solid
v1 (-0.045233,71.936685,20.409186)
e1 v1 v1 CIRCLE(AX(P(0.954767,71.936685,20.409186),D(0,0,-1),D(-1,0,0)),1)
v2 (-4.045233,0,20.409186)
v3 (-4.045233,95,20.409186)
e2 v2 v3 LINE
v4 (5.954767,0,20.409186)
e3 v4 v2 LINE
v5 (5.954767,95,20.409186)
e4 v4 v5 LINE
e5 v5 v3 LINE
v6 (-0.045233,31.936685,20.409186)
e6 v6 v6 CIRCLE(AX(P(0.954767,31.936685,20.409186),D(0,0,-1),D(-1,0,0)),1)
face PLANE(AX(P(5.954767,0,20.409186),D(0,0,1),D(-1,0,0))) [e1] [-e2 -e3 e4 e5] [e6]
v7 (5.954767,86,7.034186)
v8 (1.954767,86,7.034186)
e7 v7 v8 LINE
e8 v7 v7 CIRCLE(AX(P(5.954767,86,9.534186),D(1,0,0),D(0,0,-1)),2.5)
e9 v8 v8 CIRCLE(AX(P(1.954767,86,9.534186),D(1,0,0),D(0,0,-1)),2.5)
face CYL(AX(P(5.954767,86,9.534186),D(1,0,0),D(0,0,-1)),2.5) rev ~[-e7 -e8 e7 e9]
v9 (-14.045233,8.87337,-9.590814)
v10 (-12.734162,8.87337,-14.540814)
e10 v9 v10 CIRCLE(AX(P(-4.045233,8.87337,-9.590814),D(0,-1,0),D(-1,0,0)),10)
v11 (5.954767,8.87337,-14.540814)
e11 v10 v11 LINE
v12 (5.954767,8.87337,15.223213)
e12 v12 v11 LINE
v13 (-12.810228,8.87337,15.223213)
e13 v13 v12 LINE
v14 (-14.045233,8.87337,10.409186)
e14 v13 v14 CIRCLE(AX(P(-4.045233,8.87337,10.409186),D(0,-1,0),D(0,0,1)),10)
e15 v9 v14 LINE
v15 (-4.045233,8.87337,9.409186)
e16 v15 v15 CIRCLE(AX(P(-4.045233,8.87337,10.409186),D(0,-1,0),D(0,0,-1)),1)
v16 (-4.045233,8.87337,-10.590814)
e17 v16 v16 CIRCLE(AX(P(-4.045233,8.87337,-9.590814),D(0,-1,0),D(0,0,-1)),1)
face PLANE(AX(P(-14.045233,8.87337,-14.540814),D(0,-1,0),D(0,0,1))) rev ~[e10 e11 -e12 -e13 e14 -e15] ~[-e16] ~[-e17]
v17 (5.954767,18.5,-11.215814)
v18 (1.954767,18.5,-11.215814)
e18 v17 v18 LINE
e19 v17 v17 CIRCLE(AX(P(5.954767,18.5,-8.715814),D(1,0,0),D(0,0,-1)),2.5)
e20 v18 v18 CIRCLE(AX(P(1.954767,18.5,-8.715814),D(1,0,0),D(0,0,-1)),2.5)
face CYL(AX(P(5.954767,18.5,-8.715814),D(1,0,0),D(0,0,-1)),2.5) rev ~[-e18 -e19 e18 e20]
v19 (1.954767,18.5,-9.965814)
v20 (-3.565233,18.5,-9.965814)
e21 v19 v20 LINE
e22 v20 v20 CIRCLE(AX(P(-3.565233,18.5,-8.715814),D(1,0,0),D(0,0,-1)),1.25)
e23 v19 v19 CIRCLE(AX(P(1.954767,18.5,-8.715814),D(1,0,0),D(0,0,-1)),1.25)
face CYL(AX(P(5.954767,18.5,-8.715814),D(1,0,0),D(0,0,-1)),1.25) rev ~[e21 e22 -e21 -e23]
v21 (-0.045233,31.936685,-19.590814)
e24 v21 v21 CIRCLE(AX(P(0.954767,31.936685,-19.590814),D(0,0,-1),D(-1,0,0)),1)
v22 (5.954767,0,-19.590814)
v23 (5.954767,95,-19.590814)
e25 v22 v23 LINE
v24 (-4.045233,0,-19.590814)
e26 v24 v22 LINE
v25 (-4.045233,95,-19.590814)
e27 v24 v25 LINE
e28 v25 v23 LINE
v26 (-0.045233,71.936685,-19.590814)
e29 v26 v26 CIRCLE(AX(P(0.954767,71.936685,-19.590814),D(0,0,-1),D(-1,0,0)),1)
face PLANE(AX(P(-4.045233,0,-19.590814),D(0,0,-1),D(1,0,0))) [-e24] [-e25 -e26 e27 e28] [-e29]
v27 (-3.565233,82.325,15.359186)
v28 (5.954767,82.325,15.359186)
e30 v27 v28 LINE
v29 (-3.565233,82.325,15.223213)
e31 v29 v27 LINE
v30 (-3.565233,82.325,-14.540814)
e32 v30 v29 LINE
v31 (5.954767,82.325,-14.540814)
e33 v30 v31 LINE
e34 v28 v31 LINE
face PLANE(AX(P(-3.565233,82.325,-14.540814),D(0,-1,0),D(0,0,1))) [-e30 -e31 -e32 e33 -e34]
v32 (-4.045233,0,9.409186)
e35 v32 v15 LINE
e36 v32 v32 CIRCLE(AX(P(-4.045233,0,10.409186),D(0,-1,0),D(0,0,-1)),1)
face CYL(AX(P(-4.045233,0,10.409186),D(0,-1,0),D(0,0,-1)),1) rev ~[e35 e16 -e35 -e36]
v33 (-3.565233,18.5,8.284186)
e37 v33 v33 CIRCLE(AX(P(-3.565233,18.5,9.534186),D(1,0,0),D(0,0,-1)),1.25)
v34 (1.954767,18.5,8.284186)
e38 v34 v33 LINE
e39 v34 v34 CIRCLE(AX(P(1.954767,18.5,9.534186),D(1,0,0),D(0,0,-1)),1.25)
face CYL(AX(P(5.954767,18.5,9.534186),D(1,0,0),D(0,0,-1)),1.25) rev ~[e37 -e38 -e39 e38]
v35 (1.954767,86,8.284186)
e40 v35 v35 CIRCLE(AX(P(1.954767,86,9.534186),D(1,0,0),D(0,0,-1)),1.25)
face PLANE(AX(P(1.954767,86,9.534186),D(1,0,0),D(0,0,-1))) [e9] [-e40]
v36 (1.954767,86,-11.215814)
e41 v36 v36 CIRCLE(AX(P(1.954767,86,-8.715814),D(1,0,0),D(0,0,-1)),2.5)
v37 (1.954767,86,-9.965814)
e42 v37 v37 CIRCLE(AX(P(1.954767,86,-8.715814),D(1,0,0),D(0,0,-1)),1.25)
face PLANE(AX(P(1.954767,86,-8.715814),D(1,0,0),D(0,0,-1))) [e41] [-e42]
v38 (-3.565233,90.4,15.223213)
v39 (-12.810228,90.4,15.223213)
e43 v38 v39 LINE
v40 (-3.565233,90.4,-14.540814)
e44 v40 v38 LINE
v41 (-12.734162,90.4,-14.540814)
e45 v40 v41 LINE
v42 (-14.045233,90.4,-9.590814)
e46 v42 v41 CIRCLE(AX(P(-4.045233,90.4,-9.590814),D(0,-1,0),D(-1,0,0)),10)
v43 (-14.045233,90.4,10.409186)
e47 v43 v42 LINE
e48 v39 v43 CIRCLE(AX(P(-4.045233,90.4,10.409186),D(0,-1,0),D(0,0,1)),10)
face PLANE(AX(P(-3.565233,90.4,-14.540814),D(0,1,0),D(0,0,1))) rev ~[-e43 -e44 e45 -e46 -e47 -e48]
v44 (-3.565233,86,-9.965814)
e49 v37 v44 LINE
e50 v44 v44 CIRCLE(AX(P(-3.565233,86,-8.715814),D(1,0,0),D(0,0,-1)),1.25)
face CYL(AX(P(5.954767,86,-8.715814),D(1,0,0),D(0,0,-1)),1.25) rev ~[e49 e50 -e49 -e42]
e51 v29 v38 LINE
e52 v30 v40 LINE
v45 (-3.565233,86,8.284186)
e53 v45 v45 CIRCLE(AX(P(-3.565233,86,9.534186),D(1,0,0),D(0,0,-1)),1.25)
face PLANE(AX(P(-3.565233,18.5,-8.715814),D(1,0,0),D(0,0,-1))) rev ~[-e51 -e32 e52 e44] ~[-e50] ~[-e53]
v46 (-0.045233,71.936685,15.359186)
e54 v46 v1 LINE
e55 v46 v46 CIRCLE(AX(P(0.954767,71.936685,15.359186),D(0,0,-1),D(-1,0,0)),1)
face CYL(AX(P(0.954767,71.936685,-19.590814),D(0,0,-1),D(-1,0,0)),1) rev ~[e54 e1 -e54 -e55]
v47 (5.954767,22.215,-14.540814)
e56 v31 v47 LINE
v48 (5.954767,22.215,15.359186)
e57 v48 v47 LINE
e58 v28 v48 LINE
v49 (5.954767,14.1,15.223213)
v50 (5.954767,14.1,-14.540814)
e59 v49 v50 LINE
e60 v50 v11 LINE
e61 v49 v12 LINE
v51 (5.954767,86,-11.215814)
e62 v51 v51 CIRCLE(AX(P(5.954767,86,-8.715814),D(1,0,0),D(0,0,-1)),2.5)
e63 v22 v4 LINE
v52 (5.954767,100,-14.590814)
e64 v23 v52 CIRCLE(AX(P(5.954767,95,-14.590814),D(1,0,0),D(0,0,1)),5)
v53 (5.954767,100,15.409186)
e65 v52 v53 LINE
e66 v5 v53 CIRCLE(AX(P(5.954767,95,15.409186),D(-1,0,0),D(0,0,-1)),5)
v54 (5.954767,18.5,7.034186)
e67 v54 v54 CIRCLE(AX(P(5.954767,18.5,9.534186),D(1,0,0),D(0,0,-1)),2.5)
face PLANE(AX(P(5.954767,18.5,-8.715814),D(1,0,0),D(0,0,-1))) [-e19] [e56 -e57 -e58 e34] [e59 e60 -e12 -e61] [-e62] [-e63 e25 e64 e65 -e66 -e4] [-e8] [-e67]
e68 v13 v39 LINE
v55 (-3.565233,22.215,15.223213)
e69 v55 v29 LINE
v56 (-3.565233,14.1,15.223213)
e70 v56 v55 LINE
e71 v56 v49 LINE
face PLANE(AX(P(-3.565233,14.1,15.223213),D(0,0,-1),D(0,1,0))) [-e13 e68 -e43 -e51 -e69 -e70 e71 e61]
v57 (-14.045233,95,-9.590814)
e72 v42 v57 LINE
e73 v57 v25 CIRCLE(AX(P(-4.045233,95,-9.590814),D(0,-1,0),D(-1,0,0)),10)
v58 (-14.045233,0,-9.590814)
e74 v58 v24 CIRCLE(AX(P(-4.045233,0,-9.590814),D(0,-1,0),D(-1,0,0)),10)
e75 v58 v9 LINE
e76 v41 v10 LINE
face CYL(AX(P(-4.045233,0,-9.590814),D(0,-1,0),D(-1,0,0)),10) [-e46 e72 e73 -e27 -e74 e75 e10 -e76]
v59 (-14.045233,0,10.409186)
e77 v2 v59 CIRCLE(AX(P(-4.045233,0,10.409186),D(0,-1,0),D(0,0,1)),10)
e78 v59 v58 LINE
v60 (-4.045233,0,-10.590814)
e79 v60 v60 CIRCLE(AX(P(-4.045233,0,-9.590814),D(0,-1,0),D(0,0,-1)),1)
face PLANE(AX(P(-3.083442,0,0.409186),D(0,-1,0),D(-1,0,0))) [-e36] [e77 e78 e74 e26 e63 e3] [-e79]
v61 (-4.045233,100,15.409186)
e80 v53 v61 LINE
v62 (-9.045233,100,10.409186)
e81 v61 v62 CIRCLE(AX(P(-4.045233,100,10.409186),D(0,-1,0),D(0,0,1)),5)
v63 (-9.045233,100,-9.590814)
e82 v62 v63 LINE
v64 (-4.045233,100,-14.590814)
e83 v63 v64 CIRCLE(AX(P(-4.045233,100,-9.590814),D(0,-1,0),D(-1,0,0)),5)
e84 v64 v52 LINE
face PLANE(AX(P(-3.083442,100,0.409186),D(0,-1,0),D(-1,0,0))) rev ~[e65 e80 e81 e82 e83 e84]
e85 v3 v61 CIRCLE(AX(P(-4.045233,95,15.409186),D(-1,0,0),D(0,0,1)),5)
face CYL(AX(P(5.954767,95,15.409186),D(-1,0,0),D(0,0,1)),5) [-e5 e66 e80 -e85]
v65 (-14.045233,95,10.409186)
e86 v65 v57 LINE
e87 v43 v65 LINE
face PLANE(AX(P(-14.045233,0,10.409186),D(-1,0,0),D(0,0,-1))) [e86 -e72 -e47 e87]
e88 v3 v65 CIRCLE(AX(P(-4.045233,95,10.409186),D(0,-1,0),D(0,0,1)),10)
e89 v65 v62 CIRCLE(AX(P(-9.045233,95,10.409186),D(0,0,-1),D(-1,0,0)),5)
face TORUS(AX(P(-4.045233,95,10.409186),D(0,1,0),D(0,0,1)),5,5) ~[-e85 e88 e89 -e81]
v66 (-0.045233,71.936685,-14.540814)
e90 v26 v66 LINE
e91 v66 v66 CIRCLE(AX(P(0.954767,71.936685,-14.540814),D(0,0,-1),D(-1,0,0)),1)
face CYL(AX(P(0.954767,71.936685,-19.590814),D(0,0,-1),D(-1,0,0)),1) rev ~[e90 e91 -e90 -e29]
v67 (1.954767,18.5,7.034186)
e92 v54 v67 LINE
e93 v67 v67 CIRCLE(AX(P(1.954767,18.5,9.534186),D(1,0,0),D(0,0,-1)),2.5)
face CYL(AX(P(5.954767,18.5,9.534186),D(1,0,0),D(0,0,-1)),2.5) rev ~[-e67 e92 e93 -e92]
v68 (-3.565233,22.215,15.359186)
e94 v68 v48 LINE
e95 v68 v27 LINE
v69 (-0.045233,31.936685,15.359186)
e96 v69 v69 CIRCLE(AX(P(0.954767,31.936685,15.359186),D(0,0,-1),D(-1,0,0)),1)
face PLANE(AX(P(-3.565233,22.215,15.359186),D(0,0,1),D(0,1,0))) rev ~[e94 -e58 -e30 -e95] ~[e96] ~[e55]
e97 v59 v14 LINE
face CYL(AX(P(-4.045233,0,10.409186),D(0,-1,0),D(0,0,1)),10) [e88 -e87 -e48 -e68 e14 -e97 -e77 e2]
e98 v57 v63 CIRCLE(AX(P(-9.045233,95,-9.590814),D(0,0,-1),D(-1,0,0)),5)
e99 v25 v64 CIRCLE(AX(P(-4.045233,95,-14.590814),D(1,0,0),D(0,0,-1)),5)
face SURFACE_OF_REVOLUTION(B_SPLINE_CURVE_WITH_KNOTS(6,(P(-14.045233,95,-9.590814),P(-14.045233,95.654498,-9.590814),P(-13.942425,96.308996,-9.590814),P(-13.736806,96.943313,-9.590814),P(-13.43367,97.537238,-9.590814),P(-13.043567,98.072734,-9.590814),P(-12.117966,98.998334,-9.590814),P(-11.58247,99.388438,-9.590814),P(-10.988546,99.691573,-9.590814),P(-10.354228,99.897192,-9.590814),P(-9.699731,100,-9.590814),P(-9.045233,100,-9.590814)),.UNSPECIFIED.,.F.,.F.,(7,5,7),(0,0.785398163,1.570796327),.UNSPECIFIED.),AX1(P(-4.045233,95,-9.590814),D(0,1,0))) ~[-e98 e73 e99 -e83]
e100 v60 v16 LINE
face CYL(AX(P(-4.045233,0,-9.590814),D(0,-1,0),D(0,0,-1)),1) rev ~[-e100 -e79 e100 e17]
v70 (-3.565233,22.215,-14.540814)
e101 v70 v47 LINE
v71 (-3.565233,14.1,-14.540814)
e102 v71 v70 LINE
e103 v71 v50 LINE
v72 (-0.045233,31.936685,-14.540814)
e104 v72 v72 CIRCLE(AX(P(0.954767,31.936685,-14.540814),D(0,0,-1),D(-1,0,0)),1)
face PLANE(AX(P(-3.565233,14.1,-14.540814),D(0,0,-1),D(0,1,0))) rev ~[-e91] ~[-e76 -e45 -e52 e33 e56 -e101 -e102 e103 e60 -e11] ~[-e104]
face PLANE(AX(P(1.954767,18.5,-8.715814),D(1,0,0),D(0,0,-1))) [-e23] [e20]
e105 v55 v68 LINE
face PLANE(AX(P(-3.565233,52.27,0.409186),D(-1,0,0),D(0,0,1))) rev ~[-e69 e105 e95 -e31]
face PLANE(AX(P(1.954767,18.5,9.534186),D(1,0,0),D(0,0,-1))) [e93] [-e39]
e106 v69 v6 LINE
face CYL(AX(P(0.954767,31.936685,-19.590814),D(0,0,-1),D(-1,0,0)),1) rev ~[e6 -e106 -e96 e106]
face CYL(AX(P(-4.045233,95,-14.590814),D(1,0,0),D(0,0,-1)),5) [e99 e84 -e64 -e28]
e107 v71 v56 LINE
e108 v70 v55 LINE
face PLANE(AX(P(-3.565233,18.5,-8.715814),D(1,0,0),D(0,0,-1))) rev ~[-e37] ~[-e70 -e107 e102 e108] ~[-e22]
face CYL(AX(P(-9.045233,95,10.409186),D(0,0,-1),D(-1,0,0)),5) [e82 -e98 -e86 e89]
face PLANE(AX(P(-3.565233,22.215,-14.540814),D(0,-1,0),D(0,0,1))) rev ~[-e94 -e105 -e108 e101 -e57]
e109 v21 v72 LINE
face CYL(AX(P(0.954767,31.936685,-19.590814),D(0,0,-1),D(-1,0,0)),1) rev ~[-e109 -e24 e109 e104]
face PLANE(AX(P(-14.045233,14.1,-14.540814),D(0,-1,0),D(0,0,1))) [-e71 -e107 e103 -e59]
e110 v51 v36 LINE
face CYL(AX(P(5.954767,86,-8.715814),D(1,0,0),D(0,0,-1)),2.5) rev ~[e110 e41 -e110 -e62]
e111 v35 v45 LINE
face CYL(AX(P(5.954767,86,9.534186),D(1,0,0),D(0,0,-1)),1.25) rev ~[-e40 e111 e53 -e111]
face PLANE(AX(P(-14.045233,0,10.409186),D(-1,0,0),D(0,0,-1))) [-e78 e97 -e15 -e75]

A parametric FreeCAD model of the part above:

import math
import FreeCAD as App
import Part
import Sketcher

V = App.Vector
Q = App.Units.Quantity


def edges_at(feature, points):
    """Names of the edges that pass closest to the given points."""
    edges = feature.Shape.Edges
    near = lambda p: min(range(len(edges)), key=lambda i: edges[i].distToShape(Part.Vertex(*p))[0])
    return sorted({f"Edge{near(p) + 1}" for p in points})

doc = App.newDocument("Part")
body = doc.addObject("PartDesign::Body", "Body")

# Sketch on XZ plane
sketch1 = doc.addObject("Sketcher::SketchObject", "Sketch")
body.addObject(sketch1)
sketch1.AttachmentSupport = (doc.XZ_Plane, [""])
sketch1.MapMode = "FlatFace"
sketch1.addGeometry([
    Part.LineSegment(V(6, -20, 0), V(-4, -20, 0)),  # 0
    Part.ArcOfCircle(Part.Circle(V(-4, -10, 0), V(0, 0, 1), 10), math.radians(180), math.radians(270)),  # 1
    Part.LineSegment(V(-14, -10, 0), V(-14, 10, 0)),  # 2
    Part.ArcOfCircle(Part.Circle(V(-4, 10, 0), V(0, 0, 1), 10), math.radians(90), math.radians(180)),  # 3
    Part.LineSegment(V(-4, 20, 0), V(6, 20, 0)),  # 4
    Part.LineSegment(V(6, 20, 0), V(6, -20, 0)),  # 5
], False)
sketch1.addConstraint([
    Sketcher.Constraint("Tangent", 0, 2, 1, 2),
    Sketcher.Constraint("Tangent", 1, 1, 2, 1),
    Sketcher.Constraint("Tangent", 2, 2, 3, 2),
    Sketcher.Constraint("Tangent", 3, 1, 4, 1),
    Sketcher.Constraint("Coincident", 4, 2, 5, 1),
    Sketcher.Constraint("Coincident", 5, 2, 0, 1),
    Sketcher.Constraint("Horizontal", 0),
    Sketcher.Constraint("Vertical", 2),
    Sketcher.Constraint("Horizontal", 4),
    Sketcher.Constraint("Vertical", 5),
    Sketcher.Constraint("Equal", 1, 3),
    Sketcher.Constraint("Radius", 1, Q("10 mm")),
    Sketcher.Constraint("DistanceX", 0, 2, 0, 1, Q("10 mm")),
    Sketcher.Constraint("DistanceY", 2, 1, 2, 2, Q("20 mm")),
    Sketcher.Constraint("DistanceX", 1, 3, -1, 1, Q("4.045233 mm")),
    Sketcher.Constraint("DistanceY", 1, 3, -1, 1, Q("9.590814 mm")),
])
pad1 = doc.addObject("PartDesign::Pad", "Pad")
body.addObject(pad1)
pad1.Profile = sketch1
pad1.Length = 100
pad1.Reversed = True

# Sketch on YZ plane
sketch2 = doc.addObject("Sketcher::SketchObject", "Sketch001")
body.addObject(sketch2)
sketch2.AttachmentSupport = (doc.YZ_Plane, [""])
sketch2.MapMode = "FlatFace"
sketch2.AttachmentOffset = App.Placement(V(0, 0, -14.045233), App.Rotation())
sketch2.addGeometry([
    Part.LineSegment(V(90, -14, 0), V(14, -14, 0)),
    Part.LineSegment(V(14, -14, 0), V(14, 15, 0)),
    Part.LineSegment(V(14, 15, 0), V(90, 15, 0)),
    Part.LineSegment(V(90, 15, 0), V(90, -14, 0)),
], False)
sketch2.addConstraint([
    Sketcher.Constraint("Coincident", 0, 2, 1, 1),
    Sketcher.Constraint("Coincident", 1, 2, 2, 1),
    Sketcher.Constraint("Coincident", 2, 2, 3, 1),
    Sketcher.Constraint("Coincident", 3, 2, 0, 1),
    Sketcher.Constraint("Horizontal", 0),
    Sketcher.Constraint("Vertical", 1),
    Sketcher.Constraint("Horizontal", 2),
    Sketcher.Constraint("Vertical", 3),
    Sketcher.Constraint("DistanceX", 0, 2, 0, 1, Q("75.5 mm")),
    Sketcher.Constraint("DistanceY", 1, 1, 1, 2, Q("29.1 mm")),
    Sketcher.Constraint("DistanceX", -1, 1, 2, 2, Q("90 mm")),
    Sketcher.Constraint("DistanceY", 0, 2, -1, 1, Q("14.140814 mm")),
])
pocket1 = doc.addObject("PartDesign::Pocket", "Pocket")
body.addObject(pocket1)
pocket1.Profile = sketch2
pocket1.Length = 11.2
pocket1.Reversed = True

# Sketch on YZ plane
sketch3 = doc.addObject("Sketcher::SketchObject", "Sketch002")
body.addObject(sketch3)
sketch3.AttachmentSupport = (doc.YZ_Plane, [""])
sketch3.MapMode = "FlatFace"
sketch3.AttachmentOffset = App.Placement(V(0, 0, -2.845233), App.Rotation())
sketch3.addGeometry([
    Part.ArcOfCircle(Part.Circle(V(86, 9.5, 0), V(0, 0, 1), 2.8), math.radians(31), math.radians(90)),  # 0
    Part.ArcOfCircle(Part.Circle(V(86, 9.5, 0), V(0, 0, 1), 2.8), math.radians(-31), math.radians(31)),  # 1
    Part.ArcOfCircle(Part.Circle(V(86, 9.5, 0), V(0, 0, 1), 2.8), math.radians(90), math.radians(329)),  # 2
    Part.ArcOfCircle(Part.Circle(V(86, -8.7, 0), V(0, 0, 1), 2.8), math.radians(31), math.radians(90)),  # 3
    Part.ArcOfCircle(Part.Circle(V(86, -8.7, 0), V(0, 0, 1), 2.8), math.radians(-31), math.radians(31)),  # 4
    Part.ArcOfCircle(Part.Circle(V(86, -8.7, 0), V(0, 0, 1), 2.8), math.radians(90), math.radians(329)),  # 5
    Part.LineSegment(V(22.6, 15, 0), V(81.9, 15, 0)),  # 6
    Part.LineSegment(V(81.9, 15, 0), V(81.9, -14.1, 0)),  # 7
    Part.LineSegment(V(81.9, -14.1, 0), V(22.6, -14.1, 0)),  # 8
    Part.LineSegment(V(22.6, -14.1, 0), V(22.6, 15, 0)),  # 9
    Part.ArcOfCircle(Part.Circle(V(18.5, 9.5, 0), V(0, 0, 1), 2.8), math.radians(149), math.radians(211)),  # 10
    Part.ArcOfCircle(Part.Circle(V(18.5, 9.5, 0), V(0, 0, 1), 2.8), math.radians(90), math.radians(149)),  # 11
    Part.ArcOfCircle(Part.Circle(V(18.5, 9.5, 0), V(0, 0, 1), 2.8), math.radians(-149), math.radians(90)),  # 12
    Part.ArcOfCircle(Part.Circle(V(18.5, -8.7, 0), V(0, 0, 1), 2.8), math.radians(149), math.radians(211)),  # 13
    Part.ArcOfCircle(Part.Circle(V(18.5, -8.7, 0), V(0, 0, 1), 2.8), math.radians(90), math.radians(149)),  # 14
    Part.ArcOfCircle(Part.Circle(V(18.5, -8.7, 0), V(0, 0, 1), 2.8), math.radians(-149), math.radians(90)),  # 15
], False)
sketch3.addConstraint([
    Sketcher.Constraint("Tangent", 0, 1, 1, 2),
    Sketcher.Constraint("Tangent", 1, 1, 2, 2),
    Sketcher.Constraint("Tangent", 2, 1, 0, 2),
    Sketcher.Constraint("Tangent", 3, 1, 4, 2),
    Sketcher.Constraint("Tangent", 4, 1, 5, 2),
    Sketcher.Constraint("Tangent", 5, 1, 3, 2),
    Sketcher.Constraint("Coincident", 6, 2, 7, 1),
    Sketcher.Constraint("Coincident", 7, 2, 8, 1),
    Sketcher.Constraint("Coincident", 8, 2, 9, 1),
    Sketcher.Constraint("Coincident", 9, 2, 6, 1),
    Sketcher.Constraint("Tangent", 10, 1, 11, 2),
    Sketcher.Constraint("Tangent", 11, 1, 12, 2),
    Sketcher.Constraint("Tangent", 12, 1, 10, 2),
    Sketcher.Constraint("Tangent", 13, 1, 14, 2),
    Sketcher.Constraint("Tangent", 14, 1, 15, 2),
    Sketcher.Constraint("Tangent", 15, 1, 13, 2),
    Sketcher.Constraint("Horizontal", 6),
    Sketcher.Constraint("Vertical", 7),
    Sketcher.Constraint("Horizontal", 8),
    Sketcher.Constraint("Vertical", 9),
    Sketcher.Constraint("Equal", 2, 3),
    Sketcher.Constraint("Equal", 5, 10),
    Sketcher.Constraint("Equal", 12, 13),
    Sketcher.Constraint("Horizontal", 2, 3, 10, 3),
    Sketcher.Constraint("Horizontal", 5, 3, 13, 3),
    Sketcher.Constraint("Horizontal", 0, 1, 10, 1),
    Sketcher.Constraint("Horizontal", 1, 1, 12, 1),
    Sketcher.Constraint("Horizontal", 3, 1, 13, 1),
    Sketcher.Constraint("Horizontal", 4, 1, 15, 1),
    Sketcher.Constraint("Vertical", 2, 3, 3, 3),
    Sketcher.Constraint("Vertical", 12, 3, 13, 3),
    Sketcher.Constraint("Vertical", 0, 1, 1, 1),
    Sketcher.Constraint("Vertical", 5, 3, 2, 1),
    Sketcher.Constraint("Vertical", 1, 1, 3, 1),
    Sketcher.Constraint("Vertical", 3, 1, 4, 1),
    Sketcher.Constraint("Vertical", 2, 1, 5, 1),
    Sketcher.Constraint("Vertical", 15, 3, 11, 1),
    Sketcher.Constraint("Vertical", 11, 1, 14, 1),
    Sketcher.Constraint("Radius", 0, Q("2.75 mm")),
    Sketcher.Constraint("DistanceY", 7, 2, 7, 1, Q("29.1 mm")),
    Sketcher.Constraint("DistanceX", -1, 1, 0, 3, Q("86 mm")),
    Sketcher.Constraint("DistanceY", 0, 1, 6, 2, Q("4 mm")),
    Sketcher.Constraint("DistanceY", 7, 2, 4, 1, Q("4 mm")),
    Sketcher.Constraint("DistanceX", 6, 1, 6, 2, Q("59.31 mm")),
    Sketcher.Constraint("DistanceX", -1, 1, 10, 3, Q("18.5 mm")),
    Sketcher.Constraint("DistanceY", 3, 1, 1, 1, Q("15.4 mm")),
    Sketcher.Constraint("DistanceX", -1, 1, 6, 2, Q("81.925 mm")),
    Sketcher.Constraint("DistanceY", -1, 1, 0, 3, Q("9.534186 mm")),
])
pocket2 = doc.addObject("PartDesign::Pocket", "Pocket001")
body.addObject(pocket2)
pocket2.Profile = sketch3
pocket2.Length = 22.2
pocket2.Reversed = True
doc.recompute()

fillet = doc.addObject("PartDesign::Fillet", "Fillet")
body.addObject(fillet)
fillet.Base = (pocket2, edges_at(pocket2, [
    (-11.116, 100, -16.662),
    (-14.045, 100, 0.409),
    (-11.116, 100, 17.48),
    (0.955, 100, 20.409),
    (0.955, 100, -19.591),
]))
fillet.Radius = 5

# Sketch on YZ plane
sketch4 = doc.addObject("Sketcher::SketchObject", "Sketch003")
body.addObject(sketch4)
sketch4.AttachmentSupport = (doc.YZ_Plane, [""])
sketch4.MapMode = "FlatFace"
sketch4.AttachmentOffset = App.Placement(V(0, 0, -2.845233), App.Rotation())
sketch4.addGeometry([
    Part.LineSegment(V(22.6, -14.1, 0), V(14.5, -14.1, 0)),  # 0
    Part.LineSegment(V(14.5, -14.1, 0), V(14.5, 15, 0)),  # 1
    Part.LineSegment(V(14.5, 15, 0), V(22.6, 15, 0)),  # 2
    Part.LineSegment(V(22.6, 15, 0), V(22.6, -14.1, 0)),  # 3
    Part.Circle(V(18.5, -8.7, 0), V(0, 0, 1), 2.8),  # 4
    Part.Circle(V(18.5, 9.5, 0), V(0, 0, 1), 2.8),  # 5
    Part.LineSegment(V(90, -14.1, 0), V(81.9, -14.1, 0)),  # 6
    Part.LineSegment(V(81.9, -14.1, 0), V(81.9, 15, 0)),  # 7
    Part.LineSegment(V(81.9, 15, 0), V(90, 15, 0)),  # 8
    Part.LineSegment(V(90, 15, 0), V(90, -14.1, 0)),  # 9
    Part.Circle(V(86, -8.7, 0), V(0, 0, 1), 2.8),  # 10
    Part.Circle(V(86, 9.5, 0), V(0, 0, 1), 2.8),  # 11
], False)
sketch4.addConstraint([
    Sketcher.Constraint("Coincident", 0, 2, 1, 1),
    Sketcher.Constraint("Coincident", 1, 2, 2, 1),
    Sketcher.Constraint("Coincident", 2, 2, 3, 1),
    Sketcher.Constraint("Coincident", 3, 2, 0, 1),
    Sketcher.Constraint("Coincident", 6, 2, 7, 1),
    Sketcher.Constraint("Coincident", 7, 2, 8, 1),
    Sketcher.Constraint("Coincident", 8, 2, 9, 1),
    Sketcher.Constraint("Coincident", 9, 2, 6, 1),
    Sketcher.Constraint("Horizontal", 0),
    Sketcher.Constraint("Vertical", 1),
    Sketcher.Constraint("Horizontal", 2),
    Sketcher.Constraint("Vertical", 3),
    Sketcher.Constraint("Horizontal", 6),
    Sketcher.Constraint("Vertical", 7),
    Sketcher.Constraint("Horizontal", 8),
    Sketcher.Constraint("Vertical", 9),
    Sketcher.Constraint("Equal", 4, 5),
    Sketcher.Constraint("Equal", 5, 10),
    Sketcher.Constraint("Equal", 10, 11),
    Sketcher.Constraint("Horizontal", 4, 3, 10, 3),
    Sketcher.Constraint("Horizontal", 5, 3, 11, 3),
    Sketcher.Constraint("Horizontal", 3, 2, 6, 2),
    Sketcher.Constraint("Horizontal", 2, 2, 7, 2),
    Sketcher.Constraint("Vertical", 4, 3, 5, 3),
    Sketcher.Constraint("Vertical", 10, 3, 11, 3),
    Sketcher.Constraint("Diameter", 4, Q("5.5 mm")),
    Sketcher.Constraint("DistanceY", 1, 1, 1, 2, Q("29.1 mm")),
    Sketcher.Constraint("DistanceX", -1, 1, 10, 3, Q("86 mm")),
    Sketcher.Constraint("DistanceX", -1, 1, 8, 2, Q("90 mm")),
    Sketcher.Constraint("DistanceX", 0, 2, 4, 3, Q("4 mm")),
    Sketcher.Constraint("DistanceX", -1, 1, 4, 3, Q("18.5 mm")),
    Sketcher.Constraint("DistanceX", 0, 2, 0, 1, Q("8.115 mm")),
    Sketcher.Constraint("DistanceX", 6, 2, 6, 1, Q("8.075 mm")),
    Sketcher.Constraint("DistanceY", 4, 3, 5, 3, Q("18.25 mm")),
    Sketcher.Constraint("DistanceY", 0, 2, 4, 3, Q("5.425 mm")),
    Sketcher.Constraint("DistanceY", 4, 3, -1, 1, Q("8.715814 mm")),
])
pad2 = doc.addObject("PartDesign::Pad", "Pad001")
body.addObject(pad2)
pad2.Profile = sketch4
pad2.Length = 0.72
pad2.Reversed = True

# Sketch on YZ plane
sketch5 = doc.addObject("Sketcher::SketchObject", "Sketch004")
body.addObject(sketch5)
sketch5.AttachmentSupport = (doc.YZ_Plane, [""])
sketch5.MapMode = "FlatFace"
sketch5.AttachmentOffset = App.Placement(V(0, 0, 5.954767), App.Rotation())
sketch5.addGeometry([
    Part.Circle(V(18.5, -8.7, 0), V(0, 0, 1), 2.8),  # 0
    Part.Circle(V(18.5, -8.7, 0), V(0, 0, 1), 1.2),  # 1
    Part.Circle(V(18.5, 9.5, 0), V(0, 0, 1), 2.8),  # 2
    Part.Circle(V(18.5, 9.5, 0), V(0, 0, 1), 1.2),  # 3
    Part.Circle(V(86, -8.7, 0), V(0, 0, 1), 2.8),  # 4
    Part.Circle(V(86, -8.7, 0), V(0, 0, 1), 1.2),  # 5
    Part.Circle(V(86, 9.5, 0), V(0, 0, 1), 2.8),  # 6
    Part.Circle(V(86, 9.5, 0), V(0, 0, 1), 1.2),  # 7
], False)
sketch5.addConstraint([
    Sketcher.Constraint("Coincident", 1, 3, 0, 3),
    Sketcher.Constraint("Coincident", 3, 3, 2, 3),
    Sketcher.Constraint("Coincident", 5, 3, 4, 3),
    Sketcher.Constraint("Coincident", 7, 3, 6, 3),
    Sketcher.Constraint("Equal", 0, 2),
    Sketcher.Constraint("Equal", 1, 3),
    Sketcher.Constraint("Equal", 2, 4),
    Sketcher.Constraint("Equal", 3, 5),
    Sketcher.Constraint("Equal", 4, 6),
    Sketcher.Constraint("Equal", 5, 7),
    Sketcher.Constraint("Horizontal", 1, 3, 4, 3),
    Sketcher.Constraint("Horizontal", 3, 3, 6, 3),
    Sketcher.Constraint("Vertical", 1, 3, 2, 3),
    Sketcher.Constraint("Vertical", 5, 3, 6, 3),
    Sketcher.Constraint("Diameter", 0, Q("5.5 mm")),
    Sketcher.Constraint("Diameter", 1, Q("2.5 mm")),
    Sketcher.Constraint("DistanceX", -1, 1, 4, 3, Q("86 mm")),
    Sketcher.Constraint("DistanceX", -1, 1, 0, 3, Q("18.5 mm")),
    Sketcher.Constraint("DistanceY", 0, 3, 2, 3, Q("18.25 mm")),
    Sketcher.Constraint("DistanceY", 0, 3, -1, 1, Q("8.715814 mm")),
])
pad3 = doc.addObject("PartDesign::Pad", "Pad002")
body.addObject(pad3)
pad3.Profile = sketch5
pad3.Length = 9.52
pad3.Reversed = True

# Sketch on YZ plane
sketch6 = doc.addObject("Sketcher::SketchObject", "Sketch005")
body.addObject(sketch6)
sketch6.AttachmentSupport = (doc.YZ_Plane, [""])
sketch6.MapMode = "FlatFace"
sketch6.AttachmentOffset = App.Placement(V(0, 0, 5.954767), App.Rotation())
sketch6.addGeometry([
    Part.Circle(V(18.5, 9.5, 0), V(0, 0, 1), 2.5),
    Part.Circle(V(18.5, -8.7, 0), V(0, 0, 1), 2.5),
    Part.Circle(V(86, 9.5, 0), V(0, 0, 1), 2.5),
    Part.Circle(V(86, -8.7, 0), V(0, 0, 1), 2.5),
], False)
sketch6.addConstraint([
    Sketcher.Constraint("Equal", 0, 1),
    Sketcher.Constraint("Equal", 1, 2),
    Sketcher.Constraint("Equal", 2, 3),
    Sketcher.Constraint("Horizontal", 0, 3, 2, 3),
    Sketcher.Constraint("Horizontal", 1, 3, 3, 3),
    Sketcher.Constraint("Vertical", 0, 3, 1, 3),
    Sketcher.Constraint("Vertical", 2, 3, 3, 3),
    Sketcher.Constraint("Diameter", 0, Q("5 mm")),
    Sketcher.Constraint("DistanceX", -1, 1, 2, 3, Q("86 mm")),
    Sketcher.Constraint("DistanceX", -1, 1, 0, 3, Q("18.5 mm")),
    Sketcher.Constraint("DistanceY", 1, 3, 0, 3, Q("18.25 mm")),
    Sketcher.Constraint("DistanceY", -1, 1, 0, 3, Q("9.534186 mm")),
])
pocket3 = doc.addObject("PartDesign::Pocket", "Pocket002")
body.addObject(pocket3)
pocket3.Profile = sketch6
pocket3.Length = 4

# Sketch on YZ plane
sketch7 = doc.addObject("Sketcher::SketchObject", "Sketch006")
body.addObject(sketch7)
sketch7.AttachmentSupport = (doc.YZ_Plane, [""])
sketch7.MapMode = "FlatFace"
sketch7.AttachmentOffset = App.Placement(V(0, 0, -3.565233), App.Rotation())
sketch7.addGeometry([
    Part.LineSegment(V(90, -15, 0), V(14, -15, 0)),  # 0
    Part.LineSegment(V(14, -15, 0), V(14, 15, 0)),  # 1
    Part.LineSegment(V(14, 15, 0), V(90, 15, 0)),  # 2
    Part.LineSegment(V(90, 15, 0), V(90, -15, 0)),  # 3
    Part.LineSegment(V(14, 15, 0), V(14, -14, 0)),  # 4
    Part.LineSegment(V(14, -14, 0), V(90, -14, 0)),  # 5
    Part.LineSegment(V(90, -14, 0), V(90, 15, 0)),  # 6
    Part.LineSegment(V(90, 15, 0), V(14, 15, 0)),  # 7
], False)
sketch7.addConstraint([
    Sketcher.Constraint("Coincident", 0, 2, 1, 1),
    Sketcher.Constraint("Coincident", 1, 2, 2, 1),
    Sketcher.Constraint("Coincident", 2, 2, 3, 1),
    Sketcher.Constraint("Coincident", 3, 2, 0, 1),
    Sketcher.Constraint("Coincident", 4, 2, 5, 1),
    Sketcher.Constraint("Coincident", 5, 2, 6, 1),
    Sketcher.Constraint("Coincident", 6, 2, 7, 1),
    Sketcher.Constraint("Coincident", 7, 2, 4, 1),
    Sketcher.Constraint("Horizontal", 0),
    Sketcher.Constraint("Vertical", 1),
    Sketcher.Constraint("Horizontal", 2),
    Sketcher.Constraint("Vertical", 3),
    Sketcher.Constraint("Vertical", 4),
    Sketcher.Constraint("Horizontal", 5),
    Sketcher.Constraint("Vertical", 6),
    Sketcher.Constraint("Horizontal", 7),
    Sketcher.Constraint("DistanceX", 0, 2, 0, 1, Q("76.3 mm")),
    Sketcher.Constraint("DistanceX", 5, 1, 5, 2, Q("75.5 mm")),
    Sketcher.Constraint("DistanceX", -1, 1, 5, 2, Q("90 mm")),
    Sketcher.Constraint("DistanceX", -1, 1, 0, 2, Q("14.1 mm")),
    Sketcher.Constraint("DistanceY", 0, 2, 4, 2, Q("0.4 mm")),
    Sketcher.Constraint("DistanceY", 6, 2, 2, 2, Q("0.4 mm")),
    Sketcher.Constraint("DistanceY", 1, 1, 1, 2, Q("29.764027 mm")),
    Sketcher.Constraint("DistanceY", 0, 2, -1, 1, Q("14.540814 mm")),
])
pocket4 = doc.addObject("PartDesign::Pocket", "Pocket003")
body.addObject(pocket4)
pocket4.Profile = sketch7
pocket4.Length = 44

# Sketch on YZ plane
sketch8 = doc.addObject("Sketcher::SketchObject", "Sketch007")
body.addObject(sketch8)
sketch8.AttachmentSupport = (doc.YZ_Plane, [""])
sketch8.MapMode = "FlatFace"
sketch8.AttachmentOffset = App.Placement(V(0, 0, -3.565233), App.Rotation())
sketch8.addGeometry([
    Part.LineSegment(V(82, -15, 0), V(22, -15, 0)),  # 0
    Part.LineSegment(V(22, -15, 0), V(22, 15, 0)),  # 1
    Part.LineSegment(V(22, 15, 0), V(82, 15, 0)),  # 2
    Part.LineSegment(V(82, 15, 0), V(82, -15, 0)),  # 3
    Part.LineSegment(V(23, 15, 0), V(23, -14, 0)),  # 4
    Part.LineSegment(V(23, -14, 0), V(82, -14, 0)),  # 5
    Part.LineSegment(V(82, -14, 0), V(82, 15, 0)),  # 6
    Part.LineSegment(V(82, 15, 0), V(23, 15, 0)),  # 7
], False)
sketch8.addConstraint([
    Sketcher.Constraint("Coincident", 0, 2, 1, 1),
    Sketcher.Constraint("Coincident", 1, 2, 2, 1),
    Sketcher.Constraint("Coincident", 2, 2, 3, 1),
    Sketcher.Constraint("Coincident", 3, 2, 0, 1),
    Sketcher.Constraint("Coincident", 4, 2, 5, 1),
    Sketcher.Constraint("Coincident", 5, 2, 6, 1),
    Sketcher.Constraint("Coincident", 6, 2, 7, 1),
    Sketcher.Constraint("Coincident", 7, 2, 4, 1),
    Sketcher.Constraint("Horizontal", 0),
    Sketcher.Constraint("Vertical", 1),
    Sketcher.Constraint("Horizontal", 2),
    Sketcher.Constraint("Vertical", 3),
    Sketcher.Constraint("Vertical", 4),
    Sketcher.Constraint("Horizontal", 5),
    Sketcher.Constraint("Vertical", 6),
    Sketcher.Constraint("Horizontal", 7),
    Sketcher.Constraint("DistanceY", 1, 1, 1, 2, Q("29.9 mm")),
    Sketcher.Constraint("DistanceY", 4, 2, 4, 1, Q("29.1 mm")),
    Sketcher.Constraint("DistanceX", 0, 2, 0, 1, Q("60.11 mm")),
    Sketcher.Constraint("DistanceX", 5, 1, 5, 2, Q("59.31 mm")),
    Sketcher.Constraint("DistanceX", 0, 2, 4, 2, Q("0.4 mm")),
    Sketcher.Constraint("DistanceY", 0, 2, 4, 2, Q("0.4 mm")),
    Sketcher.Constraint("DistanceX", -1, 1, 0, 2, Q("22.215 mm")),
    Sketcher.Constraint("DistanceY", 0, 2, -1, 1, Q("14.540814 mm")),
])
pocket5 = doc.addObject("PartDesign::Pocket", "Pocket004")
body.addObject(pocket5)
pocket5.Profile = sketch8
pocket5.Length = 44
pocket5.Reversed = True

# Sketch on YZ plane
sketch9 = doc.addObject("Sketcher::SketchObject", "Sketch008")
body.addObject(sketch9)
sketch9.AttachmentSupport = (doc.YZ_Plane, [""])
sketch9.MapMode = "FlatFace"
sketch9.AttachmentOffset = App.Placement(V(0, 0, -14.045233), App.Rotation())
sketch9.addGeometry([
    Part.LineSegment(V(14, -15, 0), V(9, -15, 0)),
    Part.LineSegment(V(9, -15, 0), V(9, 15, 0)),
    Part.LineSegment(V(9, 15, 0), V(14, 15, 0)),
    Part.LineSegment(V(14, 15, 0), V(14, -15, 0)),
], False)
sketch9.addConstraint([
    Sketcher.Constraint("Coincident", 0, 2, 1, 1),
    Sketcher.Constraint("Coincident", 1, 2, 2, 1),
    Sketcher.Constraint("Coincident", 2, 2, 3, 1),
    Sketcher.Constraint("Coincident", 3, 2, 0, 1),
    Sketcher.Constraint("Horizontal", 0),
    Sketcher.Constraint("Vertical", 1),
    Sketcher.Constraint("Horizontal", 2),
    Sketcher.Constraint("Vertical", 3),
    Sketcher.Constraint("DistanceX", -1, 1, 2, 2, Q("14.1 mm")),
    Sketcher.Constraint("DistanceX", 0, 2, 0, 1, Q("5.22663 mm")),
    Sketcher.Constraint("DistanceY", 1, 1, 1, 2, Q("29.764027 mm")),
    Sketcher.Constraint("DistanceY", 0, 2, -1, 1, Q("14.540814 mm")),
])
pocket6 = doc.addObject("PartDesign::Pocket", "Pocket005")
body.addObject(pocket6)
pocket6.Profile = sketch9
pocket6.Length = 44
pocket6.Reversed = True

# Sketch on XY plane
sketch10 = doc.addObject("Sketcher::SketchObject", "Sketch009")
body.addObject(sketch10)
sketch10.AttachmentSupport = (doc.XY_Plane, [""])
sketch10.MapMode = "FlatFace"
sketch10.AttachmentOffset = App.Placement(V(0, 0, -19.590814), App.Rotation())
sketch10.addGeometry([
    Part.Circle(V(1, 71.9, 0), V(0, 0, 1), 1),
    Part.Circle(V(1, 31.9, 0), V(0, 0, 1), 1),
], False)
sketch10.addConstraint([
    Sketcher.Constraint("Equal", 0, 1),
    Sketcher.Constraint("Vertical", 0, 3, 1, 3),
    Sketcher.Constraint("Diameter", 0, Q("2 mm")),
    Sketcher.Constraint("DistanceY", 1, 3, 0, 3, Q("40 mm")),
    Sketcher.Constraint("DistanceX", -1, 1, 0, 3, Q("0.954767 mm")),
    Sketcher.Constraint("DistanceY", -1, 1, 0, 3, Q("71.936685 mm")),
])
pocket7 = doc.addObject("PartDesign::Pocket", "Pocket006")
body.addObject(pocket7)
pocket7.Profile = sketch10
pocket7.Length = 122.5
pocket7.Reversed = True

# Sketch on XZ plane
sketch11 = doc.addObject("Sketcher::SketchObject", "Sketch010")
body.addObject(sketch11)
sketch11.AttachmentSupport = (doc.XZ_Plane, [""])
sketch11.MapMode = "FlatFace"
sketch11.addGeometry([
    Part.Circle(V(-4, -9.6, 0), V(0, 0, 1), 1),
    Part.Circle(V(-4, 10.4, 0), V(0, 0, 1), 1),
], False)
sketch11.addConstraint([
    Sketcher.Constraint("Equal", 0, 1),
    Sketcher.Constraint("Vertical", 0, 3, 1, 3),
    Sketcher.Constraint("Diameter", 0, Q("2 mm")),
    Sketcher.Constraint("DistanceY", 0, 3, 1, 3, Q("20 mm")),
    Sketcher.Constraint("DistanceX", 0, 3, -1, 1, Q("4.045233 mm")),
    Sketcher.Constraint("DistanceY", 0, 3, -1, 1, Q("9.590814 mm")),
])
pocket8 = doc.addObject("PartDesign::Pocket", "Pocket007")
body.addObject(pocket8)
pocket8.Profile = sketch11
pocket8.Length = 10.5

doc.recompute()
